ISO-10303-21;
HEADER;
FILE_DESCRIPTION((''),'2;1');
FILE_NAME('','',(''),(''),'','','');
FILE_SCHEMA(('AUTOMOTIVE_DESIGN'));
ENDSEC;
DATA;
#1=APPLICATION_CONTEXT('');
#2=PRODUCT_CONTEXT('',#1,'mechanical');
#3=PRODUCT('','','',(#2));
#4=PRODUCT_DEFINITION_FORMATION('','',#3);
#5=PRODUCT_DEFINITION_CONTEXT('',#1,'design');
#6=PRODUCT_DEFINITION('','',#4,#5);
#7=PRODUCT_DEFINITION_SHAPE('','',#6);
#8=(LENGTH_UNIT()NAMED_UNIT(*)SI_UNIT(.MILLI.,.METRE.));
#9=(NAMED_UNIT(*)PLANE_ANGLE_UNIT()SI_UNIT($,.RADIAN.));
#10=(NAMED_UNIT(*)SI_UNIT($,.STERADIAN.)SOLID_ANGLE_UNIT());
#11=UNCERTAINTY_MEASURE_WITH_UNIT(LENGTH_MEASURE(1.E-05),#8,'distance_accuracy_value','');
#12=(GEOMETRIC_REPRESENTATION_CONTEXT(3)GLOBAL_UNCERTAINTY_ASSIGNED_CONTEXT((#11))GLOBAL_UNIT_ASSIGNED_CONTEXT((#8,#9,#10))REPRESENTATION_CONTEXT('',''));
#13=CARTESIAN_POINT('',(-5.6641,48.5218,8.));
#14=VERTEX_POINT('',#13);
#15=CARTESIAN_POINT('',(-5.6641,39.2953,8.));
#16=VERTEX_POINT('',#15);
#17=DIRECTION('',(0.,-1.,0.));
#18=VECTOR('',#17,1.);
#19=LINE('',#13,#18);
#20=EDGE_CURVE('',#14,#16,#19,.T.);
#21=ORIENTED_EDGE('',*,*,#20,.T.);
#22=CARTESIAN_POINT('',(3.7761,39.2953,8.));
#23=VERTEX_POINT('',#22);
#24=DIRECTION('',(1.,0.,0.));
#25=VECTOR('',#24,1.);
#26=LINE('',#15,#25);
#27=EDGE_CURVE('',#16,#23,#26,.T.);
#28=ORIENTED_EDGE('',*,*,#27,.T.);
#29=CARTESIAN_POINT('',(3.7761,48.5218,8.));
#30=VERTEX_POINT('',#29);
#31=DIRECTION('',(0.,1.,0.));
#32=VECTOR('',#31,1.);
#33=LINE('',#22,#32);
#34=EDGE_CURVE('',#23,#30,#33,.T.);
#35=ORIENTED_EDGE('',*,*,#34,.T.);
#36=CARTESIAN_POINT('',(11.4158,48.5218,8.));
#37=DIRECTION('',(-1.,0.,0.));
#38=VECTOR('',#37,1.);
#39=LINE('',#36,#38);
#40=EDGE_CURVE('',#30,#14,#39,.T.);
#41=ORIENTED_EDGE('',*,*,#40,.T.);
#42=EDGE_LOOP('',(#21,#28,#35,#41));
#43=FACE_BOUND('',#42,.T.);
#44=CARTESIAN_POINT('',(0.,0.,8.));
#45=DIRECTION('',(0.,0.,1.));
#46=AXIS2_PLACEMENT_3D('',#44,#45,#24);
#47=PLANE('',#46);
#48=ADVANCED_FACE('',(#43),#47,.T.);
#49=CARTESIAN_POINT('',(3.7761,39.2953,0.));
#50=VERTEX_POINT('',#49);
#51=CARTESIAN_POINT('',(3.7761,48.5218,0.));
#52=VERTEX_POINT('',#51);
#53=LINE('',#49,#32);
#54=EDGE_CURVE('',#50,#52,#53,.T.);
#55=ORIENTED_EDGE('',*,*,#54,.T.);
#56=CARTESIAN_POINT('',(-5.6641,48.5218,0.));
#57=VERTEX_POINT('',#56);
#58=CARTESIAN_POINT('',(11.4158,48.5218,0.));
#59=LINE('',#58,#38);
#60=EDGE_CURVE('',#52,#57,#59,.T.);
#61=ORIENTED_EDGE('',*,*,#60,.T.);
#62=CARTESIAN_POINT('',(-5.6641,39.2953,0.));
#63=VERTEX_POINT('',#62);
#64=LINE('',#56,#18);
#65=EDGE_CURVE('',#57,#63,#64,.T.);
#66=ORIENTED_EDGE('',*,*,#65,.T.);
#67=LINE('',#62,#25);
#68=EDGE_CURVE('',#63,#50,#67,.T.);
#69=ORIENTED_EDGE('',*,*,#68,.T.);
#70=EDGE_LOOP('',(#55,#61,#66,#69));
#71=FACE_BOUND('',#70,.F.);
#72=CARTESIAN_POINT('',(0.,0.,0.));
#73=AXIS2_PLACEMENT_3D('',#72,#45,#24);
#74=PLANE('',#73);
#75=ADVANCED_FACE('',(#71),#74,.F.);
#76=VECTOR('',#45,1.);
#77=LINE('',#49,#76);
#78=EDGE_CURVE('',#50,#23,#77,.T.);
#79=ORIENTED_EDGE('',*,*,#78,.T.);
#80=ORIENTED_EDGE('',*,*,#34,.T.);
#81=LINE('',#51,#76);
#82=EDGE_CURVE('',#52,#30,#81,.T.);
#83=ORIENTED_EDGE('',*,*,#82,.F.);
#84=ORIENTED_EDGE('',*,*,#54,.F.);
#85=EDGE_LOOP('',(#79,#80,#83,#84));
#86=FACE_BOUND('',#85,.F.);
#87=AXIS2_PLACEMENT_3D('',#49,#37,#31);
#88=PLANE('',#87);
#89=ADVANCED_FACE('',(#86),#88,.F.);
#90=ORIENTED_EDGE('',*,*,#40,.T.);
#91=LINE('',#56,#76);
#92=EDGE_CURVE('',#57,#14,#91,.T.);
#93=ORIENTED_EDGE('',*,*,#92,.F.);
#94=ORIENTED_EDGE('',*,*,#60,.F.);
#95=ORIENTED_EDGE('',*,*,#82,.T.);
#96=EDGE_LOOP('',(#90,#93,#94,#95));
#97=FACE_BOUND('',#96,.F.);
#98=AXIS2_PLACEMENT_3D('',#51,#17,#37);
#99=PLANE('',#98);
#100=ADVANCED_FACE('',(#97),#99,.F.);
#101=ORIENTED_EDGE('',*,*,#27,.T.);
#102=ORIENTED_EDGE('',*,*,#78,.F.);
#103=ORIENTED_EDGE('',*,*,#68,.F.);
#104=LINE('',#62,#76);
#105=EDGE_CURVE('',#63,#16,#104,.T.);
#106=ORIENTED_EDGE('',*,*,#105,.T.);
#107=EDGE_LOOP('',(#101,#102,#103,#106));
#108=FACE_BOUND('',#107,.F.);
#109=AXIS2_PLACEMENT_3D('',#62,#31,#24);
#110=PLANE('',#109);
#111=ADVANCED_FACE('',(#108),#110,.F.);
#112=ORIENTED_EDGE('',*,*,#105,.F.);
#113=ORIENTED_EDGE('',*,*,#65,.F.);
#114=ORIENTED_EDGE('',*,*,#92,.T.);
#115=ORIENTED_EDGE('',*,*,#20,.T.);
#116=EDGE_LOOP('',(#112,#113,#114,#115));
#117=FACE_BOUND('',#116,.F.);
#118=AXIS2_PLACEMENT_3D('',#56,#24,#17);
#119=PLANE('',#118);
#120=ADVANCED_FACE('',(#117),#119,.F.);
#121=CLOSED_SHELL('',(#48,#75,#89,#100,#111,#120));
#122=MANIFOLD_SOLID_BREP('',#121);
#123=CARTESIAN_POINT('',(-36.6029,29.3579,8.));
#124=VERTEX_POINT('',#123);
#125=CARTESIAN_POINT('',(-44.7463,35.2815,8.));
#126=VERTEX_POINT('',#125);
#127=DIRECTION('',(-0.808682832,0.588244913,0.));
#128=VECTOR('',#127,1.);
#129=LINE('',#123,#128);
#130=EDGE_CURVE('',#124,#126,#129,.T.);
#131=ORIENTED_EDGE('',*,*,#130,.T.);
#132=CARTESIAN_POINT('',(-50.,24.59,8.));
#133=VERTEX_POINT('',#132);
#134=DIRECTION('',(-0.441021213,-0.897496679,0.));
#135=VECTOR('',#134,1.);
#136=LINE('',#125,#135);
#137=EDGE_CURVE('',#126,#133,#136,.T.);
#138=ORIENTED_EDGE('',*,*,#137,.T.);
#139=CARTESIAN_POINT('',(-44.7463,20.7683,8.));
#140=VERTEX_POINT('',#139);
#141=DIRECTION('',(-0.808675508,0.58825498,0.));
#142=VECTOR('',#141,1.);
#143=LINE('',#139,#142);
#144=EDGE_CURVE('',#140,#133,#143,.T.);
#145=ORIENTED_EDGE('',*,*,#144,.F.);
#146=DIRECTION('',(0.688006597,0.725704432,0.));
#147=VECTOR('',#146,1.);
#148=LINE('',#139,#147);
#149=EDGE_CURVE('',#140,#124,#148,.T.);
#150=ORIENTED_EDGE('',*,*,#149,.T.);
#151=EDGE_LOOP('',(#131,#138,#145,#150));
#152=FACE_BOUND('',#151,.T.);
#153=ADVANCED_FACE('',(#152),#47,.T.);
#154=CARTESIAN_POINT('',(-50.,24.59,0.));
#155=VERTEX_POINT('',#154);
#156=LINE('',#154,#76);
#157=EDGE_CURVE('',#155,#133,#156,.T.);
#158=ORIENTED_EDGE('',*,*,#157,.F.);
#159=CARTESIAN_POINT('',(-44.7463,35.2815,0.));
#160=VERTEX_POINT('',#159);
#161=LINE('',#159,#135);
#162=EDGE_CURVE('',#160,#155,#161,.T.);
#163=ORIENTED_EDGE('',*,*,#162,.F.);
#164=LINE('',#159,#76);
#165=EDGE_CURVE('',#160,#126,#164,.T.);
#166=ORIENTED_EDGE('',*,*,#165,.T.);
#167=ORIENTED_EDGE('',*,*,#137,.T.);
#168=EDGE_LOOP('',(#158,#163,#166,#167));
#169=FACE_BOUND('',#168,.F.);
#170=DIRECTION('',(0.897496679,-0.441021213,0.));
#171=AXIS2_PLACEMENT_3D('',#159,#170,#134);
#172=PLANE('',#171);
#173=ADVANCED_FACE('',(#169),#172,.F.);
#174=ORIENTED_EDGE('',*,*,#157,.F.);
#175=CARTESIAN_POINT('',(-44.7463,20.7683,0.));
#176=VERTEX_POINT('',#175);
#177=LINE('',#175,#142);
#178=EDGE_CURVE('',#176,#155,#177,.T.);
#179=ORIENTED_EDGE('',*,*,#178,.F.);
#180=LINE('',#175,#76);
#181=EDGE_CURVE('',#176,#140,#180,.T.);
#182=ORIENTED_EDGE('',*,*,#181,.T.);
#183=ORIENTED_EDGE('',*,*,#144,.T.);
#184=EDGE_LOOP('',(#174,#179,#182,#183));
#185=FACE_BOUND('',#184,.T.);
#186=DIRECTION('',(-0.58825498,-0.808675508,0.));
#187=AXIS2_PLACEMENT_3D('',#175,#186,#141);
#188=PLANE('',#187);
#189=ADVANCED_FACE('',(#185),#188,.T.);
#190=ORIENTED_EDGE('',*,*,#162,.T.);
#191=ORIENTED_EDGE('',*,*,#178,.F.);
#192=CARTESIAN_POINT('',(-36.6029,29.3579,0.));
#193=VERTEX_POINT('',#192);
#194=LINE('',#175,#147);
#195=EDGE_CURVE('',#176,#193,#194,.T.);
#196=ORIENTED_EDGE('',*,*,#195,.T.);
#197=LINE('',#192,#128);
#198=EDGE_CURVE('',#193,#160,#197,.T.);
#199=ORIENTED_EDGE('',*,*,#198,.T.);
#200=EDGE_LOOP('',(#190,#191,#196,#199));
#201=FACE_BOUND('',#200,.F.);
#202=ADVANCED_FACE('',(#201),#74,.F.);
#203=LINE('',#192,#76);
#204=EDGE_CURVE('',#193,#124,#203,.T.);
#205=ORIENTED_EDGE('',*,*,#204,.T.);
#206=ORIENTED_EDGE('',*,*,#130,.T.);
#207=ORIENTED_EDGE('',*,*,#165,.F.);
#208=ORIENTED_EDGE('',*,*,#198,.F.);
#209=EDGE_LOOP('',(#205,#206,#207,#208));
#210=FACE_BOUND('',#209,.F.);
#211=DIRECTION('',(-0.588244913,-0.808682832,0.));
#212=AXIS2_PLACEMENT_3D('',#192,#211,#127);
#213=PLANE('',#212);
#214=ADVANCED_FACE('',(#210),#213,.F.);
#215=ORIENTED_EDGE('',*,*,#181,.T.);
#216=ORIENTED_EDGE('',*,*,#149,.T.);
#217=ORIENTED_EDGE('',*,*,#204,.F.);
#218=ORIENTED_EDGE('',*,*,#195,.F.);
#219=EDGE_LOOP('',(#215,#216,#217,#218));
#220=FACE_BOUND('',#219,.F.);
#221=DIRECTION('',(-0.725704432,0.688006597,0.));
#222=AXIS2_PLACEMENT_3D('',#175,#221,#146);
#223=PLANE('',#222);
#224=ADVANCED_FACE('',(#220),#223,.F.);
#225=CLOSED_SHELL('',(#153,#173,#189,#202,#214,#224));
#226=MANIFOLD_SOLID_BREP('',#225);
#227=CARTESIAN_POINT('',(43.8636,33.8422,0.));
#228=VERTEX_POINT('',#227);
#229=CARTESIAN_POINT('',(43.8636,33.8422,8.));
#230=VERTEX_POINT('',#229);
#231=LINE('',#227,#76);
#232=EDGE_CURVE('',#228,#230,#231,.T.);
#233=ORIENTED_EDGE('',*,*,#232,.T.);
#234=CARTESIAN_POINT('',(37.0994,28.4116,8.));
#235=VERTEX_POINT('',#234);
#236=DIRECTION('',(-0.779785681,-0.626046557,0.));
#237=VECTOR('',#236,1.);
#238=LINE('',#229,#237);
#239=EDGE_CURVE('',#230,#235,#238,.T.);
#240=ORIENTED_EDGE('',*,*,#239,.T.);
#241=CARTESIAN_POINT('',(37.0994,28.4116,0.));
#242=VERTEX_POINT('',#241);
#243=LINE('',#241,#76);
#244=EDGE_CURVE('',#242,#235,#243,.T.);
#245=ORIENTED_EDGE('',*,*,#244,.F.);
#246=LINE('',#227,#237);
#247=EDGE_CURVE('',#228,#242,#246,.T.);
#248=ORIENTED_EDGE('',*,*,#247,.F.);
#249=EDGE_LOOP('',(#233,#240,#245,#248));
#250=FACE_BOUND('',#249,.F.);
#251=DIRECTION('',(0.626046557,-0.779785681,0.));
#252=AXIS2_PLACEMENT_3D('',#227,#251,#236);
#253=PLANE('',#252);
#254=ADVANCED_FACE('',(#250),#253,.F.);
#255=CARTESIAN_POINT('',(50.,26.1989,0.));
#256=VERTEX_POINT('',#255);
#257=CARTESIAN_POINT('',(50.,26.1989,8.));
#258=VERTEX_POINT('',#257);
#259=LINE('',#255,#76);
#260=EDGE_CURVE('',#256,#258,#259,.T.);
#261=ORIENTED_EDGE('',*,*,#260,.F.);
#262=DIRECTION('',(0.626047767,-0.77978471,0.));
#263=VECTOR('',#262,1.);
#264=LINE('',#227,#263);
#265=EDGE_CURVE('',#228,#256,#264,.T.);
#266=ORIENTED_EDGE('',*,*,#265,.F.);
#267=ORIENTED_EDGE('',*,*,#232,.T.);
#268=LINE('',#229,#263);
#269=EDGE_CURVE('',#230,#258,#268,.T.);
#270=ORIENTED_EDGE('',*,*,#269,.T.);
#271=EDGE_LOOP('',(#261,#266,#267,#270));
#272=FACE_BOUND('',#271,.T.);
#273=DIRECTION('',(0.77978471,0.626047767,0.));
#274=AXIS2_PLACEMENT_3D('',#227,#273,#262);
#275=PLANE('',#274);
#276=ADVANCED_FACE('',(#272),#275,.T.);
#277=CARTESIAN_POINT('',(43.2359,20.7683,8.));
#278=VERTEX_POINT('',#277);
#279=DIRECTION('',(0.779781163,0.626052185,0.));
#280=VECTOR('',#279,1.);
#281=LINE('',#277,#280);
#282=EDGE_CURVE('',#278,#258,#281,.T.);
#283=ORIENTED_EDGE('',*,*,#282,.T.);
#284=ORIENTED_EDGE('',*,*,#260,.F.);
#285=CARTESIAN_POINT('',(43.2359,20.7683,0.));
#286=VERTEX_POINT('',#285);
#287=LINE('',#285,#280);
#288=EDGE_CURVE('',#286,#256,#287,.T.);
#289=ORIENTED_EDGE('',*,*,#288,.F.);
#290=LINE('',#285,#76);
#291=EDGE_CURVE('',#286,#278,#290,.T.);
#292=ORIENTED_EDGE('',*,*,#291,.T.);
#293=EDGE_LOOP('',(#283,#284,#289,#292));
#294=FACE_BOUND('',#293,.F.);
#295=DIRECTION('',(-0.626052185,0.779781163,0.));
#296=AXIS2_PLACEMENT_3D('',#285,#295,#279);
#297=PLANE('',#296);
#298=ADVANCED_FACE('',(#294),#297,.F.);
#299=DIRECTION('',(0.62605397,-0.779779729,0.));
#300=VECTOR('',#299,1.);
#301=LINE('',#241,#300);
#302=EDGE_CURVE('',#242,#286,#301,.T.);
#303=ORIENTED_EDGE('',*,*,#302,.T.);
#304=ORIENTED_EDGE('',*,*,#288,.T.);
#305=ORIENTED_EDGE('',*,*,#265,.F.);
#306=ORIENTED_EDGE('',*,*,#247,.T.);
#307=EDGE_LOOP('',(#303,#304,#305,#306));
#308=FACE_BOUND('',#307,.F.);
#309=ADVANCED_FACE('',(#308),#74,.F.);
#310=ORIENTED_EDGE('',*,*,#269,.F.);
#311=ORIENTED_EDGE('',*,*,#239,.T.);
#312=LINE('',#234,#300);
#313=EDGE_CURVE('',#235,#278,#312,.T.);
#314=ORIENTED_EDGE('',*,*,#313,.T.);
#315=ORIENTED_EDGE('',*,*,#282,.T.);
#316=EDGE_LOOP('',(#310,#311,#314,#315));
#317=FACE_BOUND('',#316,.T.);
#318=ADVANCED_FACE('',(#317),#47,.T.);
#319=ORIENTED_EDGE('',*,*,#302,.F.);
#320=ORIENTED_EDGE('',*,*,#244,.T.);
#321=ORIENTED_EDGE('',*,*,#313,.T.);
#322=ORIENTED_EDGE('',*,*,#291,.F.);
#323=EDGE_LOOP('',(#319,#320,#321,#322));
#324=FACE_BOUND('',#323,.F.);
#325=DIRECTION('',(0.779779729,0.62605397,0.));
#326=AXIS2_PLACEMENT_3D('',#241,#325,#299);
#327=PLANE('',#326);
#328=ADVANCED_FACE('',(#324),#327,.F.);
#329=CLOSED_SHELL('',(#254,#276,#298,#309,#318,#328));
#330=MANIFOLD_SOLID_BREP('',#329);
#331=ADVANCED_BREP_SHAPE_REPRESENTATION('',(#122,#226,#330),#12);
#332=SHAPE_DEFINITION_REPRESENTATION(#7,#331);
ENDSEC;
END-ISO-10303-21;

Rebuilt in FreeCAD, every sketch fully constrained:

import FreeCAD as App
import Part
import Sketcher
Q = App.Units.Quantity

doc = App.newDocument("Part")
body = doc.addObject("PartDesign::Body", "Body")
body.AllowCompound = True

sketch1 = body.newObject("Sketcher::SketchObject", "Sketch")
sketch1.AttachmentSupport = (doc.getObject("XY_Plane"), [""])
sketch1.MapMode = "FlatFace"
sketch1.addGeometry([
    Part.LineSegment(App.Vector(43.2359, 20.7683, 0), App.Vector(50, 26.1989, 0)),
    Part.LineSegment(App.Vector(50, 26.1989, 0), App.Vector(43.8636, 33.8422, 0)),
    Part.LineSegment(App.Vector(43.8636, 33.8422, 0), App.Vector(37.0994, 28.4116, 0)),
    Part.LineSegment(App.Vector(37.0994, 28.4116, 0), App.Vector(43.2359, 20.7683, 0)),
    Part.LineSegment(App.Vector(-50, 24.59, 0), App.Vector(-44.7463, 20.7683, 0)),
    Part.LineSegment(App.Vector(-44.7463, 20.7683, 0), App.Vector(-36.6029, 29.3579, 0)),
    Part.LineSegment(App.Vector(-36.6029, 29.3579, 0), App.Vector(-44.7463, 35.2815, 0)),
    Part.LineSegment(App.Vector(-44.7463, 35.2815, 0), App.Vector(-50, 24.59, 0)),
    Part.LineSegment(App.Vector(3.7761, 39.2953, 0), App.Vector(3.7761, 48.5218, 0)),
    Part.LineSegment(App.Vector(3.7761, 48.5218, 0), App.Vector(-5.6641, 48.5218, 0)),
    Part.LineSegment(App.Vector(-5.6641, 48.5218, 0), App.Vector(-5.6641, 39.2953, 0)),
    Part.LineSegment(App.Vector(-5.6641, 39.2953, 0), App.Vector(3.7761, 39.2953, 0)),
], False)
sketch1.addConstraint([
    Sketcher.Constraint("Coincident", 0, 2, 1, 1),
    Sketcher.Constraint("Coincident", 1, 2, 2, 1),
    Sketcher.Constraint("Coincident", 2, 2, 3, 1),
    Sketcher.Constraint("Coincident", 3, 2, 0, 1),
    Sketcher.Constraint("Coincident", 4, 2, 5, 1),
    Sketcher.Constraint("Coincident", 5, 2, 6, 1),
    Sketcher.Constraint("Coincident", 6, 2, 7, 1),
    Sketcher.Constraint("Coincident", 7, 2, 4, 1),
    Sketcher.Constraint("Coincident", 8, 2, 9, 1),
    Sketcher.Constraint("Coincident", 9, 2, 10, 1),
    Sketcher.Constraint("Coincident", 10, 2, 11, 1),
    Sketcher.Constraint("Coincident", 11, 2, 8, 1),
    Sketcher.Constraint("Vertical", 8),
    Sketcher.Constraint("Horizontal", 9),
    Sketcher.Constraint("Vertical", 10),
    Sketcher.Constraint("Horizontal", 11),
    Sketcher.Constraint("Perpendicular", 0, 1),
    Sketcher.Constraint("Perpendicular", 1, 2),
    Sketcher.Constraint("Perpendicular", 2, 3),
    Sketcher.Constraint("Parallel", 4, 6),
    Sketcher.Constraint("Horizontal", 3, 2, 4, 2),
    Sketcher.Constraint("Vertical", 4, 2, 6, 2),
    Sketcher.Constraint("Angle", 0, Q("38.7595 deg")),
    Sketcher.Constraint("Angle", 7, Q("-116.169 deg")),
    Sketcher.Constraint("Distance", 5, Q("0.466 in")),
    Sketcher.Constraint("Distance", 7, Q("0.469 in")),
    Sketcher.Constraint("DistanceX", 9, 2, -1, 1, Q("0.223 in")),
    Sketcher.Constraint("Distance", 0, Q("0.3415 in")),
    Sketcher.Constraint("Distance", 1, Q("0.3859 in")),
    Sketcher.Constraint("DistanceX", 9, 2, 9, 1, Q("9.4402 mm")),
    Sketcher.Constraint("DistanceY", 8, 1, 8, 2, Q("9.2265 mm")),
    Sketcher.Constraint("DistanceX", -1, 1, 0, 2, Q("1.9685 in")),
    Sketcher.Constraint("DistanceX", 7, 2, -1, 1, Q("1.9685 in")),
    Sketcher.Constraint("DistanceY", -1, 1, 7, 2, Q("0.9681 in")),
    Sketcher.Constraint("DistanceY", -1, 1, 8, 2, Q("1.9103 in")),
    Sketcher.Constraint("DistanceX", 4, 2, 5, 2, Q("0.3206 in")),
])
pad1 = body.newObject("PartDesign::Pad", "Pad")
pad1.Profile = sketch1
pad1.Length = 8

doc.recompute()
